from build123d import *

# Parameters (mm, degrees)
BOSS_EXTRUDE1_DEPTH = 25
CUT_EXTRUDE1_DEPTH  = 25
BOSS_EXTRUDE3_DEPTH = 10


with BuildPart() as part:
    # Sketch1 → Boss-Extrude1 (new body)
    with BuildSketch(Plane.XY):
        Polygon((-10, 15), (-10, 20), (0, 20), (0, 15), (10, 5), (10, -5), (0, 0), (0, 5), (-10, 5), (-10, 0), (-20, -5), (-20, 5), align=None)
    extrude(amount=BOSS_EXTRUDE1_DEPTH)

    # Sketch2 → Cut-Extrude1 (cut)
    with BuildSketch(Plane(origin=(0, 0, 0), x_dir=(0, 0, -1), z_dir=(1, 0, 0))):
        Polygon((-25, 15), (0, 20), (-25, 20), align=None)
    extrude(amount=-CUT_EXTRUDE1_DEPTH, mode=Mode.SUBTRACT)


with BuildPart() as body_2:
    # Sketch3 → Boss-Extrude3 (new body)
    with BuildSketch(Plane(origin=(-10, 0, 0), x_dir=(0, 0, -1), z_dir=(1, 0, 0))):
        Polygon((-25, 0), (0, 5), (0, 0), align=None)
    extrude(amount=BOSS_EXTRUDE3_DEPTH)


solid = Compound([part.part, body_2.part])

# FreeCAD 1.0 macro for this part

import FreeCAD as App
import Part
import Sketcher
from FreeCAD import Vector

doc = App.newDocument("Part")
body = doc.addObject("PartDesign::Body", "Body")

sketch1 = doc.addObject("Sketcher::SketchObject", "Sketch")
body.addObject(sketch1)
sketch1.AttachmentSupport = (doc.XY_Plane, [""])
sketch1.MapMode = "FlatFace"
sketch1.addGeometry([
    Part.LineSegment(Vector(-10, 20, 0), Vector(-10, 15, 0)),
    Part.LineSegment(Vector(-10, 15, 0), Vector(-20, 5, 0)),
    Part.LineSegment(Vector(-20, 5, 0), Vector(-20, -5, 0)),
    Part.LineSegment(Vector(-20, -5, 0), Vector(-10, 0, 0)),
    Part.LineSegment(Vector(-10, 0, 0), Vector(-10, 5, 0)),
    Part.LineSegment(Vector(-10, 5, 0), Vector(0, 5, 0)),
    Part.LineSegment(Vector(0, 5, 0), Vector(0, 0, 0)),
    Part.LineSegment(Vector(0, 0, 0), Vector(10, -5, 0)),
    Part.LineSegment(Vector(10, -5, 0), Vector(10, 5, 0)),
    Part.LineSegment(Vector(10, 5, 0), Vector(0, 15, 0)),
    Part.LineSegment(Vector(0, 15, 0), Vector(0, 20, 0)),
    Part.LineSegment(Vector(0, 20, 0), Vector(-10, 20, 0)),
], False)
sketch1.addConstraint([
    Sketcher.Constraint("Coincident", 0, 2, 1, 1),
    Sketcher.Constraint("Coincident", 1, 2, 2, 1),
    Sketcher.Constraint("Coincident", 2, 2, 3, 1),
    Sketcher.Constraint("Coincident", 3, 2, 4, 1),
    Sketcher.Constraint("Coincident", 4, 2, 5, 1),
    Sketcher.Constraint("Coincident", 5, 2, 6, 1),
    Sketcher.Constraint("Coincident", 6, 2, 7, 1),
    Sketcher.Constraint("Coincident", 7, 2, 8, 1),
    Sketcher.Constraint("Coincident", 8, 2, 9, 1),
    Sketcher.Constraint("Coincident", 9, 2, 10, 1),
    Sketcher.Constraint("Coincident", 10, 2, 11, 1),
    Sketcher.Constraint("Coincident", 11, 2, 0, 1),
    Sketcher.Constraint("Vertical", 0),
    Sketcher.Constraint("Vertical", 2),
    Sketcher.Constraint("Vertical", 4),
    Sketcher.Constraint("Horizontal", 5),
    Sketcher.Constraint("Vertical", 6),
    Sketcher.Constraint("Vertical", 8),
    Sketcher.Constraint("Vertical", 10),
    Sketcher.Constraint("Horizontal", 11),
    Sketcher.Constraint("Coincident", 6, 2, -1, 1),
    Sketcher.Constraint("Symmetric", 4, 2, 7, 2, -1, 1),
    Sketcher.Constraint("PointOnObject", 3, 2, -1),
    Sketcher.Constraint("PointOnObject", 9, 2, -2),
    Sketcher.Constraint("Perpendicular", 1, 9),
    Sketcher.Constraint("Horizontal", 1, 2, 4, 2),
    Sketcher.Constraint("Horizontal", 2, 2, 7, 2),
    Sketcher.Constraint("Horizontal", 5, 2, 8, 2),
    Sketcher.Constraint("Horizontal", 0, 2, 9, 2),
    Sketcher.Constraint("Vertical", 0, 2, 3, 2),
    Sketcher.Constraint("Equal", 11, 2),
    Sketcher.Constraint("Equal", 0, 4),
    Sketcher.Constraint("Equal", 3, 7),
    Sketcher.Constraint("DistanceX", 5, 1, 5, 2, 10.0),
])
pad1 = doc.addObject("PartDesign::Pad", "Pad")
body.addObject(pad1)
pad1.Profile = sketch1
pad1.Length = 25

sketch2 = doc.addObject("Sketcher::SketchObject", "Sketch001")
body.addObject(sketch2)
sketch2.AttachmentSupport = (doc.YZ_Plane, [""])
sketch2.MapMode = "FlatFace"
sketch2.addGeometry([
    Part.LineSegment(Vector(15, 25, 0), Vector(20, 0, 0)),
    Part.LineSegment(Vector(20, 0, 0), Vector(20, 25, 0)),
    Part.LineSegment(Vector(20, 25, 0), Vector(15, 25, 0)),
], False)
sketch2.addConstraint([
    Sketcher.Constraint("Coincident", 0, 2, 1, 1),
    Sketcher.Constraint("Coincident", 1, 2, 2, 1),
    Sketcher.Constraint("Coincident", 2, 2, 0, 1),
    Sketcher.Constraint("Vertical", 1),
    Sketcher.Constraint("Horizontal", 2),
    Sketcher.Constraint("PointOnObject", 0, 2, -1),
    Sketcher.Constraint("DistanceX", 2, 2, 2, 1, 5.0),
    Sketcher.Constraint("DistanceY", 1, 1, 1, 2, 25.0),
    Sketcher.Constraint("DistanceX", -1, 1, 0, 2, 20.0),
])
pocket1 = doc.addObject("PartDesign::Pocket", "Pocket")
body.addObject(pocket1)
pocket1.Profile = sketch2
pocket1.Length = 25
body2 = doc.addObject("PartDesign::Body", "Body001")

sketch3 = doc.addObject("Sketcher::SketchObject", "Sketch002")
body2.addObject(sketch3)
sketch3.AttachmentSupport = (doc.getObject("YZ_Plane001"), [""])
sketch3.MapMode = "FlatFace"
sketch3.AttachmentOffset = App.Placement(Vector(0, 0, -10), App.Rotation())
sketch3.addGeometry([
    Part.LineSegment(Vector(5, 0, 0), Vector(0, 25, 0)),
    Part.LineSegment(Vector(0, 25, 0), Vector(0, 0, 0)),
    Part.LineSegment(Vector(0, 0, 0), Vector(5, 0, 0)),
], False)
sketch3.addConstraint([
    Sketcher.Constraint("Coincident", 0, 2, 1, 1),
    Sketcher.Constraint("Coincident", 1, 2, 2, 1),
    Sketcher.Constraint("Coincident", 2, 2, 0, 1),
    Sketcher.Constraint("Vertical", 1),
    Sketcher.Constraint("Horizontal", 2),
    Sketcher.Constraint("Coincident", 1, 2, -1, 1),
    Sketcher.Constraint("DistanceX", 2, 1, 2, 2, 5.0),
    Sketcher.Constraint("DistanceY", 1, 2, 1, 1, 25.0),
])
pad2 = doc.addObject("PartDesign::Pad", "Pad001")
body2.addObject(pad2)
pad2.Profile = sketch3
pad2.Length = 10

doc.recompute()
